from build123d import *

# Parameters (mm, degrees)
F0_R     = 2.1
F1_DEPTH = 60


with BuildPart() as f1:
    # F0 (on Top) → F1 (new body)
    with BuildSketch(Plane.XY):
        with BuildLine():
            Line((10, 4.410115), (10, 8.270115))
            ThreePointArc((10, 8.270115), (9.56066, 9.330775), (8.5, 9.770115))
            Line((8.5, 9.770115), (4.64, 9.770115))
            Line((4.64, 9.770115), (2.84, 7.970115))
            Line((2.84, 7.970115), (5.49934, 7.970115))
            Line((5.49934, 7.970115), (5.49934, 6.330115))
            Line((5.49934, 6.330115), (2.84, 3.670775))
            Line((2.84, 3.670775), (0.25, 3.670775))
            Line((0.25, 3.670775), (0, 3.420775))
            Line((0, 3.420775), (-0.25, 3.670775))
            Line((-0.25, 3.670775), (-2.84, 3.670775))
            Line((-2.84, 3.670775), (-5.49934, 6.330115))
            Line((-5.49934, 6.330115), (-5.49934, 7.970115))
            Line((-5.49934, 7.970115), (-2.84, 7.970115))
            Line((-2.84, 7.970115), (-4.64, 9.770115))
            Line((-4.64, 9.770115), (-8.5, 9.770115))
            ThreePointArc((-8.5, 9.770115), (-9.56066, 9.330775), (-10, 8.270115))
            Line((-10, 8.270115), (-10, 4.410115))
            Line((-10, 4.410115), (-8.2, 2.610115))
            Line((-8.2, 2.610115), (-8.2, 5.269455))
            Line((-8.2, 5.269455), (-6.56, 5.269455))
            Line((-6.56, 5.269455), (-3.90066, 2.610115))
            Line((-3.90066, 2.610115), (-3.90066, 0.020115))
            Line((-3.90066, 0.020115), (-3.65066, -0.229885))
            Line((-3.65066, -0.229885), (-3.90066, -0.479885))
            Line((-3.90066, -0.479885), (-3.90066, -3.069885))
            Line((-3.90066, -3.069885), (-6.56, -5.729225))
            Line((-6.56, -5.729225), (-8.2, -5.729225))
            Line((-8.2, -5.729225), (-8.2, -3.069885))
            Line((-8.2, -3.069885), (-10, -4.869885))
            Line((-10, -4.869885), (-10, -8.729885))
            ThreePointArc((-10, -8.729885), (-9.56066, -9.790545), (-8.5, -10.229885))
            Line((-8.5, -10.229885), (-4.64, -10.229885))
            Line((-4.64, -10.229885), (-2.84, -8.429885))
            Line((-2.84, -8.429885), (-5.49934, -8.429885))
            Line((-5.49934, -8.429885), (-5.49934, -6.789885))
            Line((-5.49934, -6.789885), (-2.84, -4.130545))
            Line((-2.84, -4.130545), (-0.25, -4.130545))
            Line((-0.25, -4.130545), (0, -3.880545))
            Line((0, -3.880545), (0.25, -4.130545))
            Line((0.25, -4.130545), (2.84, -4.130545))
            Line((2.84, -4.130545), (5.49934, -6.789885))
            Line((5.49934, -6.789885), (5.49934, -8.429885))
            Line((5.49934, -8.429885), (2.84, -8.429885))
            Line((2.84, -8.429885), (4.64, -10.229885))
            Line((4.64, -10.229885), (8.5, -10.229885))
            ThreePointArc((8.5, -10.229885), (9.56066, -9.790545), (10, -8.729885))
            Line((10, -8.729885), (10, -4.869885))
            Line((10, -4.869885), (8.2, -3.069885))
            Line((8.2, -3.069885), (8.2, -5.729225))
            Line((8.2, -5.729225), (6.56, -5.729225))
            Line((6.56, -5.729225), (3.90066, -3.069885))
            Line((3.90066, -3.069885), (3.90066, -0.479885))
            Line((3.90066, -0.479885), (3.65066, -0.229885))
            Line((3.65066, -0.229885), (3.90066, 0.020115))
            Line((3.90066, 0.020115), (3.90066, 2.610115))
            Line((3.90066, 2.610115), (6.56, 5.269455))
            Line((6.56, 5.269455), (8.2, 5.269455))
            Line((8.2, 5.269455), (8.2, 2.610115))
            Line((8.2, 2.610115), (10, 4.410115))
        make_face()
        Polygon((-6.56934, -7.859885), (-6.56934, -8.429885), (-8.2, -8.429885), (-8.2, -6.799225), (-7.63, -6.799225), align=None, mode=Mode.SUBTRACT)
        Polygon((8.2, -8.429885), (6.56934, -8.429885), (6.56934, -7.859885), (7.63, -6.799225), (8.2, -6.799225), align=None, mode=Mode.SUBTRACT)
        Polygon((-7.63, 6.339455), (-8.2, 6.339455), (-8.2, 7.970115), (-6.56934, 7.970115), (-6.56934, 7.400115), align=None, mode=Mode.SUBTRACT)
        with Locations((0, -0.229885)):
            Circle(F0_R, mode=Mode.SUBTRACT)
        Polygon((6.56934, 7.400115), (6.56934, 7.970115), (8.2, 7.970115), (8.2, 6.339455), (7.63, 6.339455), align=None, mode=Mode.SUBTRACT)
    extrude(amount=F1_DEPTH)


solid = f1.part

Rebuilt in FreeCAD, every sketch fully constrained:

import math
import FreeCAD as App
import Part
import Sketcher
Q = App.Units.Quantity

doc = App.newDocument("Part")
body = doc.addObject("PartDesign::Body", "Body")

sketch1 = doc.addObject("Sketcher::SketchObject", "Sketch")
body.addObject(sketch1)
sketch1.AttachmentSupport = (doc.XY_Plane, [""])
sketch1.MapMode = "FlatFace"
sketch1.addGeometry([
    Part.LineSegment(App.Vector(10, 4.41, 0), App.Vector(10, 8.27, 0)),
    Part.ArcOfCircle(Part.Circle(App.Vector(8.5, 8.27, 0), App.Vector(0, 0, 1), 1.5), math.radians(0), math.radians(90)),
    Part.LineSegment(App.Vector(8.5, 9.77, 0), App.Vector(4.64, 9.77, 0)),
    Part.LineSegment(App.Vector(4.64, 9.77, 0), App.Vector(2.84, 7.97, 0)),
    Part.LineSegment(App.Vector(2.84, 7.97, 0), App.Vector(5.5, 7.97, 0)),
    Part.LineSegment(App.Vector(5.5, 7.97, 0), App.Vector(5.5, 6.33, 0)),
    Part.LineSegment(App.Vector(5.5, 6.33, 0), App.Vector(2.84, 3.67, 0)),
    Part.LineSegment(App.Vector(2.84, 3.67, 0), App.Vector(0.25, 3.67, 0)),
    Part.LineSegment(App.Vector(0.25, 3.67, 0), App.Vector(0, 3.42, 0)),
    Part.LineSegment(App.Vector(0, 3.42, 0), App.Vector(-0.25, 3.67, 0)),
    Part.LineSegment(App.Vector(-0.25, 3.67, 0), App.Vector(-2.84, 3.67, 0)),
    Part.LineSegment(App.Vector(-2.84, 3.67, 0), App.Vector(-5.5, 6.33, 0)),
    Part.LineSegment(App.Vector(-5.5, 6.33, 0), App.Vector(-5.5, 7.97, 0)),
    Part.LineSegment(App.Vector(-5.5, 7.97, 0), App.Vector(-2.84, 7.97, 0)),
    Part.LineSegment(App.Vector(-2.84, 7.97, 0), App.Vector(-4.64, 9.77, 0)),
    Part.LineSegment(App.Vector(-4.64, 9.77, 0), App.Vector(-8.5, 9.77, 0)),
    Part.ArcOfCircle(Part.Circle(App.Vector(-8.5, 8.27, 0), App.Vector(0, 0, 1), 1.5), math.radians(90), math.radians(180)),
    Part.LineSegment(App.Vector(-10, 8.27, 0), App.Vector(-10, 4.41, 0)),
    Part.LineSegment(App.Vector(-10, 4.41, 0), App.Vector(-8.2, 2.61, 0)),
    Part.LineSegment(App.Vector(-8.2, 2.61, 0), App.Vector(-8.2, 5.27, 0)),
    Part.LineSegment(App.Vector(-8.2, 5.27, 0), App.Vector(-6.56, 5.27, 0)),
    Part.LineSegment(App.Vector(-6.56, 5.27, 0), App.Vector(-3.9, 2.61, 0)),
    Part.LineSegment(App.Vector(-3.9, 2.61, 0), App.Vector(-3.9, 0.02, 0)),
    Part.LineSegment(App.Vector(-3.9, 0.02, 0), App.Vector(-3.65, -0.23, 0)),
    Part.LineSegment(App.Vector(-3.65, -0.23, 0), App.Vector(-3.9, -0.48, 0)),
    Part.LineSegment(App.Vector(-3.9, -0.48, 0), App.Vector(-3.9, -3.07, 0)),
    Part.LineSegment(App.Vector(-3.9, -3.07, 0), App.Vector(-6.56, -5.73, 0)),
    Part.LineSegment(App.Vector(-6.56, -5.73, 0), App.Vector(-8.2, -5.73, 0)),
    Part.LineSegment(App.Vector(-8.2, -5.73, 0), App.Vector(-8.2, -3.07, 0)),
    Part.LineSegment(App.Vector(-8.2, -3.07, 0), App.Vector(-10, -4.87, 0)),
    Part.LineSegment(App.Vector(-10, -4.87, 0), App.Vector(-10, -8.73, 0)),
    Part.ArcOfCircle(Part.Circle(App.Vector(-8.5, -8.73, 0), App.Vector(0, 0, 1), 1.5), math.radians(-180), math.radians(-90)),
    Part.LineSegment(App.Vector(-8.5, -10.23, 0), App.Vector(-4.64, -10.23, 0)),
    Part.LineSegment(App.Vector(-4.64, -10.23, 0), App.Vector(-2.84, -8.43, 0)),
    Part.LineSegment(App.Vector(-2.84, -8.43, 0), App.Vector(-5.5, -8.43, 0)),
    Part.LineSegment(App.Vector(-5.5, -8.43, 0), App.Vector(-5.5, -6.79, 0)),
    Part.LineSegment(App.Vector(-5.5, -6.79, 0), App.Vector(-2.84, -4.13, 0)),
    Part.LineSegment(App.Vector(-2.84, -4.13, 0), App.Vector(-0.25, -4.13, 0)),
    Part.LineSegment(App.Vector(-0.25, -4.13, 0), App.Vector(0, -3.88, 0)),
    Part.LineSegment(App.Vector(0, -3.88, 0), App.Vector(0.25, -4.13, 0)),
    Part.LineSegment(App.Vector(0.25, -4.13, 0), App.Vector(2.84, -4.13, 0)),
    Part.LineSegment(App.Vector(2.84, -4.13, 0), App.Vector(5.5, -6.79, 0)),
    Part.LineSegment(App.Vector(5.5, -6.79, 0), App.Vector(5.5, -8.43, 0)),
    Part.LineSegment(App.Vector(5.5, -8.43, 0), App.Vector(2.84, -8.43, 0)),
    Part.LineSegment(App.Vector(2.84, -8.43, 0), App.Vector(4.64, -10.23, 0)),
    Part.LineSegment(App.Vector(4.64, -10.23, 0), App.Vector(8.5, -10.23, 0)),
    Part.ArcOfCircle(Part.Circle(App.Vector(8.5, -8.73, 0), App.Vector(0, 0, 1), 1.5), math.radians(-90), math.radians(0)),
    Part.LineSegment(App.Vector(10, -8.73, 0), App.Vector(10, -4.87, 0)),
    Part.LineSegment(App.Vector(10, -4.87, 0), App.Vector(8.2, -3.07, 0)),
    Part.LineSegment(App.Vector(8.2, -3.07, 0), App.Vector(8.2, -5.73, 0)),
    Part.LineSegment(App.Vector(8.2, -5.73, 0), App.Vector(6.56, -5.73, 0)),
    Part.LineSegment(App.Vector(6.56, -5.73, 0), App.Vector(3.9, -3.07, 0)),
    Part.LineSegment(App.Vector(3.9, -3.07, 0), App.Vector(3.9, -0.48, 0)),
    Part.LineSegment(App.Vector(3.9, -0.48, 0), App.Vector(3.65, -0.23, 0)),
    Part.LineSegment(App.Vector(3.65, -0.23, 0), App.Vector(3.9, 0.02, 0)),
    Part.LineSegment(App.Vector(3.9, 0.02, 0), App.Vector(3.9, 2.61, 0)),
    Part.LineSegment(App.Vector(3.9, 2.61, 0), App.Vector(6.56, 5.27, 0)),
    Part.LineSegment(App.Vector(6.56, 5.27, 0), App.Vector(8.2, 5.27, 0)),
    Part.LineSegment(App.Vector(8.2, 5.27, 0), App.Vector(8.2, 2.61, 0)),
    Part.LineSegment(App.Vector(8.2, 2.61, 0), App.Vector(10, 4.41, 0)),
    Part.LineSegment(App.Vector(-7.63, -6.8, 0), App.Vector(-6.57, -7.86, 0)),
    Part.LineSegment(App.Vector(-6.57, -7.86, 0), App.Vector(-6.57, -8.43, 0)),
    Part.LineSegment(App.Vector(-6.57, -8.43, 0), App.Vector(-8.2, -8.43, 0)),
    Part.LineSegment(App.Vector(-8.2, -8.43, 0), App.Vector(-8.2, -6.8, 0)),
    Part.LineSegment(App.Vector(-8.2, -6.8, 0), App.Vector(-7.63, -6.8, 0)),
    Part.LineSegment(App.Vector(8.2, -6.8, 0), App.Vector(8.2, -8.43, 0)),
    Part.LineSegment(App.Vector(8.2, -8.43, 0), App.Vector(6.57, -8.43, 0)),
    Part.LineSegment(App.Vector(6.57, -8.43, 0), App.Vector(6.57, -7.86, 0)),
    Part.LineSegment(App.Vector(6.57, -7.86, 0), App.Vector(7.63, -6.8, 0)),
    Part.LineSegment(App.Vector(7.63, -6.8, 0), App.Vector(8.2, -6.8, 0)),
    Part.LineSegment(App.Vector(-6.57, 7.4, 0), App.Vector(-7.63, 6.34, 0)),
    Part.LineSegment(App.Vector(-7.63, 6.34, 0), App.Vector(-8.2, 6.34, 0)),
    Part.LineSegment(App.Vector(-8.2, 6.34, 0), App.Vector(-8.2, 7.97, 0)),
    Part.LineSegment(App.Vector(-8.2, 7.97, 0), App.Vector(-6.57, 7.97, 0)),
    Part.LineSegment(App.Vector(-6.57, 7.97, 0), App.Vector(-6.57, 7.4, 0)),
    Part.Circle(App.Vector(0, -0.23, 0), App.Vector(0, 0, 1), 2.1),
    Part.LineSegment(App.Vector(7.63, 6.34, 0), App.Vector(6.57, 7.4, 0)),
    Part.LineSegment(App.Vector(6.57, 7.4, 0), App.Vector(6.57, 7.97, 0)),
    Part.LineSegment(App.Vector(6.57, 7.97, 0), App.Vector(8.2, 7.97, 0)),
    Part.LineSegment(App.Vector(8.2, 7.97, 0), App.Vector(8.2, 6.34, 0)),
    Part.LineSegment(App.Vector(8.2, 6.34, 0), App.Vector(7.63, 6.34, 0)),
], False)
sketch1.addConstraint([
    Sketcher.Constraint("Tangent", 0, 2, 1, 1),
    Sketcher.Constraint("Tangent", 1, 2, 2, 1),
    Sketcher.Constraint("Coincident", 2, 2, 3, 1),
    Sketcher.Constraint("Coincident", 3, 2, 4, 1),
    Sketcher.Constraint("Coincident", 4, 2, 5, 1),
    Sketcher.Constraint("Coincident", 5, 2, 6, 1),
    Sketcher.Constraint("Coincident", 6, 2, 7, 1),
    Sketcher.Constraint("Coincident", 7, 2, 8, 1),
    Sketcher.Constraint("Coincident", 8, 2, 9, 1),
    Sketcher.Constraint("Coincident", 9, 2, 10, 1),
    Sketcher.Constraint("Coincident", 10, 2, 11, 1),
    Sketcher.Constraint("Coincident", 11, 2, 12, 1),
    Sketcher.Constraint("Coincident", 12, 2, 13, 1),
    Sketcher.Constraint("Coincident", 13, 2, 14, 1),
    Sketcher.Constraint("Coincident", 14, 2, 15, 1),
    Sketcher.Constraint("Tangent", 15, 2, 16, 1),
    Sketcher.Constraint("Tangent", 16, 2, 17, 1),
    Sketcher.Constraint("Coincident", 17, 2, 18, 1),
    Sketcher.Constraint("Coincident", 18, 2, 19, 1),
    Sketcher.Constraint("Coincident", 19, 2, 20, 1),
    Sketcher.Constraint("Coincident", 20, 2, 21, 1),
    Sketcher.Constraint("Coincident", 21, 2, 22, 1),
    Sketcher.Constraint("Coincident", 22, 2, 23, 1),
    Sketcher.Constraint("Coincident", 23, 2, 24, 1),
    Sketcher.Constraint("Coincident", 24, 2, 25, 1),
    Sketcher.Constraint("Coincident", 25, 2, 26, 1),
    Sketcher.Constraint("Coincident", 26, 2, 27, 1),
    Sketcher.Constraint("Coincident", 27, 2, 28, 1),
    Sketcher.Constraint("Coincident", 28, 2, 29, 1),
    Sketcher.Constraint("Coincident", 29, 2, 30, 1),
    Sketcher.Constraint("Tangent", 30, 2, 31, 1),
    Sketcher.Constraint("Tangent", 31, 2, 32, 1),
    Sketcher.Constraint("Coincident", 32, 2, 33, 1),
    Sketcher.Constraint("Coincident", 33, 2, 34, 1),
    Sketcher.Constraint("Coincident", 34, 2, 35, 1),
    Sketcher.Constraint("Coincident", 35, 2, 36, 1),
    Sketcher.Constraint("Coincident", 36, 2, 37, 1),
    Sketcher.Constraint("Coincident", 37, 2, 38, 1),
    Sketcher.Constraint("Coincident", 38, 2, 39, 1),
    Sketcher.Constraint("Coincident", 39, 2, 40, 1),
    Sketcher.Constraint("Coincident", 40, 2, 41, 1),
    Sketcher.Constraint("Coincident", 41, 2, 42, 1),
    Sketcher.Constraint("Coincident", 42, 2, 43, 1),
    Sketcher.Constraint("Coincident", 43, 2, 44, 1),
    Sketcher.Constraint("Coincident", 44, 2, 45, 1),
    Sketcher.Constraint("Tangent", 45, 2, 46, 1),
    Sketcher.Constraint("Tangent", 46, 2, 47, 1),
    Sketcher.Constraint("Coincident", 47, 2, 48, 1),
    Sketcher.Constraint("Coincident", 48, 2, 49, 1),
    Sketcher.Constraint("Coincident", 49, 2, 50, 1),
    Sketcher.Constraint("Coincident", 50, 2, 51, 1),
    Sketcher.Constraint("Coincident", 51, 2, 52, 1),
    Sketcher.Constraint("Coincident", 52, 2, 53, 1),
    Sketcher.Constraint("Coincident", 53, 2, 54, 1),
    Sketcher.Constraint("Coincident", 54, 2, 55, 1),
    Sketcher.Constraint("Coincident", 55, 2, 56, 1),
    Sketcher.Constraint("Coincident", 56, 2, 57, 1),
    Sketcher.Constraint("Coincident", 57, 2, 58, 1),
    Sketcher.Constraint("Coincident", 58, 2, 59, 1),
    Sketcher.Constraint("Coincident", 59, 2, 0, 1),
    Sketcher.Constraint("Coincident", 60, 2, 61, 1),
    Sketcher.Constraint("Coincident", 61, 2, 62, 1),
    Sketcher.Constraint("Coincident", 62, 2, 63, 1),
    Sketcher.Constraint("Coincident", 63, 2, 64, 1),
    Sketcher.Constraint("Coincident", 64, 2, 60, 1),
    Sketcher.Constraint("Coincident", 65, 2, 66, 1),
    Sketcher.Constraint("Coincident", 66, 2, 67, 1),
    Sketcher.Constraint("Coincident", 67, 2, 68, 1),
    Sketcher.Constraint("Coincident", 68, 2, 69, 1),
    Sketcher.Constraint("Coincident", 69, 2, 65, 1),
    Sketcher.Constraint("Coincident", 70, 2, 71, 1),
    Sketcher.Constraint("Coincident", 71, 2, 72, 1),
    Sketcher.Constraint("Coincident", 72, 2, 73, 1),
    Sketcher.Constraint("Coincident", 73, 2, 74, 1),
    Sketcher.Constraint("Coincident", 74, 2, 70, 1),
    Sketcher.Constraint("Coincident", 76, 2, 77, 1),
    Sketcher.Constraint("Coincident", 77, 2, 78, 1),
    Sketcher.Constraint("Coincident", 78, 2, 79, 1),
    Sketcher.Constraint("Coincident", 79, 2, 80, 1),
    Sketcher.Constraint("Coincident", 80, 2, 76, 1),
    Sketcher.Constraint("Vertical", 0),
    Sketcher.Constraint("Horizontal", 2),
    Sketcher.Constraint("Horizontal", 4),
    Sketcher.Constraint("Vertical", 5),
    Sketcher.Constraint("Horizontal", 7),
    Sketcher.Constraint("Horizontal", 10),
    Sketcher.Constraint("Vertical", 12),
    Sketcher.Constraint("Horizontal", 13),
    Sketcher.Constraint("Horizontal", 15),
    Sketcher.Constraint("Vertical", 17),
    Sketcher.Constraint("Vertical", 19),
    Sketcher.Constraint("Horizontal", 20),
    Sketcher.Constraint("Vertical", 22),
    Sketcher.Constraint("Vertical", 25),
    Sketcher.Constraint("Horizontal", 27),
    Sketcher.Constraint("Vertical", 28),
    Sketcher.Constraint("Vertical", 30),
    Sketcher.Constraint("Horizontal", 32),
    Sketcher.Constraint("Horizontal", 34),
    Sketcher.Constraint("Vertical", 35),
    Sketcher.Constraint("Horizontal", 37),
    Sketcher.Constraint("Horizontal", 40),
    Sketcher.Constraint("Vertical", 42),
    Sketcher.Constraint("Horizontal", 43),
    Sketcher.Constraint("Horizontal", 45),
    Sketcher.Constraint("Vertical", 47),
    Sketcher.Constraint("Vertical", 49),
    Sketcher.Constraint("Horizontal", 50),
    Sketcher.Constraint("Vertical", 52),
    Sketcher.Constraint("Vertical", 55),
    Sketcher.Constraint("Horizontal", 57),
    Sketcher.Constraint("Vertical", 58),
    Sketcher.Constraint("Vertical", 61),
    Sketcher.Constraint("Horizontal", 62),
    Sketcher.Constraint("Vertical", 63),
    Sketcher.Constraint("Horizontal", 64),
    Sketcher.Constraint("Vertical", 65),
    Sketcher.Constraint("Horizontal", 66),
    Sketcher.Constraint("Vertical", 67),
    Sketcher.Constraint("Horizontal", 69),
    Sketcher.Constraint("Horizontal", 71),
    Sketcher.Constraint("Vertical", 72),
    Sketcher.Constraint("Horizontal", 73),
    Sketcher.Constraint("Vertical", 74),
    Sketcher.Constraint("Vertical", 77),
    Sketcher.Constraint("Horizontal", 78),
    Sketcher.Constraint("Vertical", 79),
    Sketcher.Constraint("Horizontal", 80),
    Sketcher.Constraint("Equal", 1, 16),
    Sketcher.Constraint("Equal", 16, 31),
    Sketcher.Constraint("Equal", 31, 46),
    Sketcher.Constraint("Symmetric", 1, 3, 16, 3, -2),
    Sketcher.Constraint("Symmetric", 31, 3, 46, 3, -2),
    Sketcher.Constraint("Symmetric", 7, 2, 9, 2, -2),
    Sketcher.Constraint("Symmetric", 5, 2, 11, 2, -2),
    Sketcher.Constraint("Symmetric", 3, 2, 13, 2, -2),
    Sketcher.Constraint("Symmetric", 37, 2, 39, 2, -2),
    Sketcher.Constraint("Symmetric", 35, 2, 41, 2, -2),
    Sketcher.Constraint("Symmetric", 33, 2, 43, 2, -2),
    Sketcher.Constraint("Symmetric", 28, 2, 48, 2, -2),
    Sketcher.Constraint("Symmetric", 26, 2, 50, 2, -2),
    Sketcher.Constraint("Symmetric", 25, 2, 51, 2, -2),
    Sketcher.Constraint("Symmetric", 23, 2, 53, 2, -2),
    Sketcher.Constraint("Symmetric", 22, 2, 54, 2, -2),
    Sketcher.Constraint("Symmetric", 20, 2, 56, 2, -2),
    Sketcher.Constraint("Symmetric", 18, 2, 58, 2, -2),
    Sketcher.Constraint("Symmetric", 62, 2, 65, 2, -2),
    Sketcher.Constraint("Symmetric", 60, 2, 67, 2, -2),
    Sketcher.Constraint("Symmetric", 64, 2, 68, 2, -2),
    Sketcher.Constraint("Symmetric", 74, 2, 76, 2, -2),
    Sketcher.Constraint("Symmetric", 72, 2, 78, 2, -2),
    Sketcher.Constraint("Symmetric", 70, 2, 80, 2, -2),
    Sketcher.Constraint("PointOnObject", 75, 3, -2),
    Sketcher.Constraint("PointOnObject", 8, 2, -2),
    Sketcher.Constraint("PointOnObject", 38, 2, -2),
    Sketcher.Constraint("Parallel", 3, 6),
    Sketcher.Constraint("Parallel", 6, 8),
    Sketcher.Constraint("Perpendicular", 8, 9),
    Sketcher.Constraint("Parallel", 9, 11),
    Sketcher.Constraint("Parallel", 11, 14),
    Sketcher.Constraint("Parallel", 14, 18),
    Sketcher.Constraint("Parallel", 18, 21),
    Sketcher.Constraint("Parallel", 21, 23),
    Sketcher.Constraint("Perpendicular", 23, 24),
    Sketcher.Constraint("Parallel", 24, 26),
    Sketcher.Constraint("Parallel", 26, 29),
    Sketcher.Constraint("Parallel", 29, 33),
    Sketcher.Constraint("Parallel", 33, 36),
    Sketcher.Constraint("Parallel", 36, 38),
    Sketcher.Constraint("Parallel", 39, 41),
    Sketcher.Constraint("Parallel", 41, 44),
    Sketcher.Constraint("Parallel", 44, 48),
    Sketcher.Constraint("Parallel", 51, 53),
    Sketcher.Constraint("Parallel", 54, 56),
    Sketcher.Constraint("Parallel", 56, 59),
    Sketcher.Constraint("Perpendicular", 59, 60),
    Sketcher.Constraint("Parallel", 68, 70),
    Sketcher.Constraint("Horizontal", 18, 2, 21, 2),
    Sketcher.Constraint("Horizontal", 75, 3, 23, 2),
    Sketcher.Constraint("Horizontal", 25, 2, 28, 2),
    Sketcher.Constraint("Horizontal", 43, 2, 61, 2),
    Sketcher.Constraint("Horizontal", 13, 2, 72, 2),
    Sketcher.Constraint("Vertical", 16, 3, 31, 3),
    Sketcher.Constraint("Vertical", 3, 2, 6, 2),
    Sketcher.Constraint("Vertical", 22, 2, 24, 2),
    Sketcher.Constraint("Vertical", 20, 2, 26, 2),
    Sketcher.Constraint("Vertical", 19, 2, 27, 2),
    Sketcher.Constraint("Vertical", 14, 2, 32, 2),
    Sketcher.Constraint("Vertical", 13, 2, 33, 2),
    Sketcher.Constraint("Vertical", 12, 2, 34, 2),
    Sketcher.Constraint("Vertical", 33, 2, 36, 2),
    Sketcher.Constraint("Vertical", 9, 2, 37, 2),
    Sketcher.Constraint("Vertical", 28, 2, 62, 2),
    Sketcher.Constraint("Vertical", 64, 2, 70, 2),
    Sketcher.Constraint("Vertical", 63, 2, 71, 2),
    Sketcher.Constraint("Vertical", 61, 2, 73, 2),
    Sketcher.Constraint("Equal", 45, 0),
    Sketcher.Constraint("Equal", 57, 5),
    Sketcher.Constraint("Equal", 43, 19),
    Sketcher.Constraint("Equal", 40, 22),
    Sketcher.Constraint("Equal", 22, 25),
    Sketcher.Constraint("Equal", 17, 30),
    Sketcher.Constraint("Equal", 12, 35),
    Sketcher.Constraint("Equal", 80, 61),
    Sketcher.Constraint("Equal", 65, 72),
    Sketcher.Constraint("Equal", 14, 18),
    Sketcher.Constraint("Equal", 9, 23),
    Sketcher.Constraint("Diameter", 75, Q("4.2 mm")),
    Sketcher.Constraint("Radius", 1, Q("1.500001 mm")),
    Sketcher.Constraint("DistanceX", -1, 1, 0, 2, Q("10 mm")),
    Sketcher.Constraint("Distance", 60, Q("1.5 mm")),
    Sketcher.Constraint("DistanceX", 2, 2, 2, 1, Q("3.86 mm")),
    Sketcher.Constraint("DistanceX", 7, 2, 7, 1, Q("2.59 mm")),
    Sketcher.Constraint("DistanceX", 20, 1, 20, 2, Q("1.64 mm")),
    Sketcher.Constraint("DistanceX", 64, 1, 64, 2, Q("0.57 mm")),
    Sketcher.Constraint("DistanceX", 18, 2, -1, 1, Q("8.2 mm")),
    Sketcher.Constraint("DistanceX", 4, 1, 4, 2, Q("2.65934 mm")),
    Sketcher.Constraint("DistanceY", -1, 1, 1, 3, Q("8.270114 mm")),
])
pad1 = doc.addObject("PartDesign::Pad", "Pad")
body.addObject(pad1)
pad1.Profile = sketch1
pad1.Length = 60

doc.recompute()
